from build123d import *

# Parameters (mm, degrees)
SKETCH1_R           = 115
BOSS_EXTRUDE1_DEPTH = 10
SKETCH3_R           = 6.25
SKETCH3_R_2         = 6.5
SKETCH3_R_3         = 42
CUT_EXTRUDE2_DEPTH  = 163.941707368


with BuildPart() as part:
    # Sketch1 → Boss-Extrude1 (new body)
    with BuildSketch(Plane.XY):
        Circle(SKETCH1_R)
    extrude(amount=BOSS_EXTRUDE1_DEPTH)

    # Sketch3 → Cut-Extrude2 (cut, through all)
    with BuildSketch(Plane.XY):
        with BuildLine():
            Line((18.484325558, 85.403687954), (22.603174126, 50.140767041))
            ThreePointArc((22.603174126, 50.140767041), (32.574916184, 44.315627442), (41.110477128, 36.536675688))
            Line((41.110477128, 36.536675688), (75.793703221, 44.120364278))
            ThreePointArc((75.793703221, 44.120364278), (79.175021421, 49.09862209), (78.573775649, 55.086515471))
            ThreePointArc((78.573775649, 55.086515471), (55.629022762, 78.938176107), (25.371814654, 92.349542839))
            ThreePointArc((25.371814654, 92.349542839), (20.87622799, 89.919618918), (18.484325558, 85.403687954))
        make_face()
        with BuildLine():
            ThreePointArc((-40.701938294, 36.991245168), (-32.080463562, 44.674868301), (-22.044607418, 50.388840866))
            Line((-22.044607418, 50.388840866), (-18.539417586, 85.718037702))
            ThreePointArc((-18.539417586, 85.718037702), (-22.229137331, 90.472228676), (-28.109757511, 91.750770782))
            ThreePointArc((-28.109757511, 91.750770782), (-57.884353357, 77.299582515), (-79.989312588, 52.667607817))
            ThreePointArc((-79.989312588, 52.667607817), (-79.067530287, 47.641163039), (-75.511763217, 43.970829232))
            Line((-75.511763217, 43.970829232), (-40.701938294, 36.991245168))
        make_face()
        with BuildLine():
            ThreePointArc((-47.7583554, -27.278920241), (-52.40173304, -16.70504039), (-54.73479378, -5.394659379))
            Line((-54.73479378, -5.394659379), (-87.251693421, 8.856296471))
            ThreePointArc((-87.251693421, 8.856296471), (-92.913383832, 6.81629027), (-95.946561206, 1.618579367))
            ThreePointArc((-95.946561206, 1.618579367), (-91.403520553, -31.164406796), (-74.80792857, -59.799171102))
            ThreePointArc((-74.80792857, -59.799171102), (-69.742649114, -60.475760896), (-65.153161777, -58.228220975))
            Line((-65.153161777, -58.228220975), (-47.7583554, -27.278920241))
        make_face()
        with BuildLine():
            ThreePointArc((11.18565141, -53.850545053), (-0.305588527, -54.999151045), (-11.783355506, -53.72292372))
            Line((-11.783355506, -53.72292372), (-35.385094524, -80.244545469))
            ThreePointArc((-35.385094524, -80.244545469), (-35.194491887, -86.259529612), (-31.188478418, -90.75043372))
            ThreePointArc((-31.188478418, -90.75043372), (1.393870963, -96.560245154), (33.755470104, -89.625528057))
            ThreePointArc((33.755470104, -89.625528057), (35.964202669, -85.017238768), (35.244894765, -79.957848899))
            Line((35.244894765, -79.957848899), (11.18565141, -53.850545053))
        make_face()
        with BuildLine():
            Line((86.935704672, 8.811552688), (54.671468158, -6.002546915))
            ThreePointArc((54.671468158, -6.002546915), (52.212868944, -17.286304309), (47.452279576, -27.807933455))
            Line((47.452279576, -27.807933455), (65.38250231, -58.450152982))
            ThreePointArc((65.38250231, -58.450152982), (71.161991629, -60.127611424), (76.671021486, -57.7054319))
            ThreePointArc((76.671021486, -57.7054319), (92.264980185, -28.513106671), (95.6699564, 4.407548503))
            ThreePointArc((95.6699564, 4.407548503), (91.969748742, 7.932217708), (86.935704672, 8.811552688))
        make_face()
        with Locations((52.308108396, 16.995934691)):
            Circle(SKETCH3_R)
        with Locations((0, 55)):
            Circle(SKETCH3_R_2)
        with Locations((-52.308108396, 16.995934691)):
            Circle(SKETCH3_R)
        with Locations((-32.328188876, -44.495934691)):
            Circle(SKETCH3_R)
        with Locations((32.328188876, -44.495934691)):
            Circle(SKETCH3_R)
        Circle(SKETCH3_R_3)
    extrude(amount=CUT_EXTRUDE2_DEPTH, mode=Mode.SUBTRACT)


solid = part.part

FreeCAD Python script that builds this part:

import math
import FreeCAD as App
import Part
import Sketcher

V = App.Vector

doc = App.newDocument("Part")
body = doc.addObject("PartDesign::Body", "Body")

# Sketch on XY plane
sketch1 = doc.addObject("Sketcher::SketchObject", "Sketch")
body.addObject(sketch1)
sketch1.AttachmentSupport = (doc.XY_Plane, [""])
sketch1.MapMode = "FlatFace"
sketch1.addGeometry(Part.Circle(V(0, 0, 0), V(0, 0, 1), 115), False)
sketch1.addConstraint(Sketcher.Constraint("Coincident", 0, 3, -1, 1))
sketch1.addConstraint(Sketcher.Constraint("Diameter", 0, 230.0))
pad1 = doc.addObject("PartDesign::Pad", "Pad")
body.addObject(pad1)
pad1.Profile = sketch1
pad1.Length = 10

# Sketch on XY plane
sketch2 = doc.addObject("Sketcher::SketchObject", "Sketch001")
body.addObject(sketch2)
sketch2.AttachmentSupport = (doc.XY_Plane, [""])
sketch2.MapMode = "FlatFace"
sketch2.addGeometry(Part.LineSegment(V(18, 85, 0), V(23, 50, 0)), False)
sketch2.addGeometry(Part.ArcOfCircle(Part.Circle(V(0, 0, 0), V(0, 0, 1), 55), math.radians(42), math.radians(66)), False)
sketch2.addGeometry(Part.LineSegment(V(41, 37, 0), V(76, 44, 0)), False)
sketch2.addGeometry(Part.ArcOfCircle(Part.Circle(V(71, 51, 0), V(0, 0, 1), 9), math.radians(-54), math.radians(26)), False)
sketch2.addGeometry(Part.ArcOfCircle(Part.Circle(V(6, 9, 0), V(0, 0, 1), 86), math.radians(33), math.radians(77)), False)
sketch2.addGeometry(Part.ArcOfCircle(Part.Circle(V(27, 84, 0), V(0, 0, 1), 9), math.radians(102), math.radians(169)), False)
sketch2.addGeometry(Part.ArcOfCircle(Part.Circle(V(0, 0, 0), V(0, 0, 1), 55), math.radians(114), math.radians(138)), False)
sketch2.addGeometry(Part.LineSegment(V(-22, 50, 0), V(-19, 86, 0)), False)
sketch2.addGeometry(Part.ArcOfCircle(Part.Circle(V(-27, 83, 0), V(0, 0, 1), 9), math.radians(18), math.radians(98)), False)
sketch2.addGeometry(Part.ArcOfCircle(Part.Circle(V(-6, 9, 0), V(0, 0, 1), 86), math.radians(105), math.radians(149)), False)
sketch2.addGeometry(Part.ArcOfCircle(Part.Circle(V(-71, 52, 0), V(0, 0, 1), 9), math.radians(174), math.radians(241)), False)
sketch2.addGeometry(Part.LineSegment(V(-76, 44, 0), V(-41, 37, 0)), False)
sketch2.addGeometry(Part.ArcOfCircle(Part.Circle(V(0, 0, 0), V(0, 0, 1), 55), math.radians(-174), math.radians(-150)), False)
sketch2.addGeometry(Part.LineSegment(V(-55, -5, 0), V(-87, 9, 0)), False)
sketch2.addGeometry(Part.ArcOfCircle(Part.Circle(V(-87, 0, 0), V(0, 0, 1), 9), math.radians(90), math.radians(170)), False)
sketch2.addGeometry(Part.ArcOfCircle(Part.Circle(V(-10, -3, 0), V(0, 0, 1), 86), math.radians(177), math.radians(221)), False)
sketch2.addGeometry(Part.ArcOfCircle(Part.Circle(V(-71, -52, 0), V(0, 0, 1), 9), math.radians(-114), math.radians(-47)), False)
sketch2.addGeometry(Part.LineSegment(V(-65, -58, 0), V(-48, -27, 0)), False)
sketch2.addGeometry(Part.ArcOfCircle(Part.Circle(V(0, 0, 0), V(0, 0, 1), 55), math.radians(-102), math.radians(-78)), False)
sketch2.addGeometry(Part.LineSegment(V(-12, -54, 0), V(-35, -80, 0)), False)
sketch2.addGeometry(Part.ArcOfCircle(Part.Circle(V(-27, -83, 0), V(0, 0, 1), 9), math.radians(162), math.radians(242)), False)
sketch2.addGeometry(Part.ArcOfCircle(Part.Circle(V(0, -11, 0), V(0, 0, 1), 86), math.radians(-111), math.radians(-67)), False)
sketch2.addGeometry(Part.ArcOfCircle(Part.Circle(V(27, -84, 0), V(0, 0, 1), 9), math.radians(-42), math.radians(25)), False)
sketch2.addGeometry(Part.LineSegment(V(35, -80, 0), V(11, -54, 0)), False)
sketch2.addGeometry(Part.LineSegment(V(87, 9, 0), V(55, -6, 0)), False)
sketch2.addGeometry(Part.ArcOfCircle(Part.Circle(V(0, 0, 0), V(0, 0, 1), 55), math.radians(-30), math.radians(-6)), False)
sketch2.addGeometry(Part.LineSegment(V(47, -28, 0), V(65, -58, 0)), False)
sketch2.addGeometry(Part.ArcOfCircle(Part.Circle(V(71, -51, 0), V(0, 0, 1), 9), math.radians(-126), math.radians(-46)), False)
sketch2.addGeometry(Part.ArcOfCircle(Part.Circle(V(10, -3, 0), V(0, 0, 1), 86), math.radians(-39), math.radians(5)), False)
sketch2.addGeometry(Part.ArcOfCircle(Part.Circle(V(88, 0, 0), V(0, 0, 1), 9), math.radians(30), math.radians(97)), False)
sketch2.addGeometry(Part.Circle(V(52, 17, 0), V(0, 0, 1), 6), False)
sketch2.addGeometry(Part.Circle(V(0, 55, 0), V(0, 0, 1), 6), False)
sketch2.addGeometry(Part.Circle(V(-52, 17, 0), V(0, 0, 1), 6), False)
sketch2.addGeometry(Part.Circle(V(-32, -44, 0), V(0, 0, 1), 6), False)
sketch2.addGeometry(Part.Circle(V(32, -44, 0), V(0, 0, 1), 6), False)
sketch2.addGeometry(Part.Circle(V(0, 0, 0), V(0, 0, 1), 42), False)
sketch2.addConstraint(Sketcher.Constraint("Coincident", 0, 2, 1, 2))
sketch2.addConstraint(Sketcher.Constraint("Coincident", 1, 1, 2, 1))
sketch2.addConstraint(Sketcher.Constraint("Coincident", 2, 2, 3, 1))
sketch2.addConstraint(Sketcher.Constraint("Coincident", 3, 2, 4, 1))
sketch2.addConstraint(Sketcher.Constraint("Coincident", 4, 2, 5, 1))
sketch2.addConstraint(Sketcher.Constraint("Coincident", 5, 2, 0, 1))
sketch2.addConstraint(Sketcher.Constraint("Coincident", 6, 1, 7, 1))
sketch2.addConstraint(Sketcher.Constraint("Coincident", 7, 2, 8, 1))
sketch2.addConstraint(Sketcher.Constraint("Coincident", 8, 2, 9, 1))
sketch2.addConstraint(Sketcher.Constraint("Coincident", 9, 2, 10, 1))
sketch2.addConstraint(Sketcher.Constraint("Coincident", 10, 2, 11, 1))
sketch2.addConstraint(Sketcher.Constraint("Coincident", 11, 2, 6, 2))
sketch2.addConstraint(Sketcher.Constraint("Coincident", 12, 1, 13, 1))
sketch2.addConstraint(Sketcher.Constraint("Coincident", 13, 2, 14, 1))
sketch2.addConstraint(Sketcher.Constraint("Coincident", 14, 2, 15, 1))
sketch2.addConstraint(Sketcher.Constraint("Coincident", 15, 2, 16, 1))
sketch2.addConstraint(Sketcher.Constraint("Coincident", 16, 2, 17, 1))
sketch2.addConstraint(Sketcher.Constraint("Coincident", 17, 2, 12, 2))
sketch2.addConstraint(Sketcher.Constraint("Coincident", 18, 1, 19, 1))
sketch2.addConstraint(Sketcher.Constraint("Coincident", 19, 2, 20, 1))
sketch2.addConstraint(Sketcher.Constraint("Coincident", 20, 2, 21, 1))
sketch2.addConstraint(Sketcher.Constraint("Coincident", 21, 2, 22, 1))
sketch2.addConstraint(Sketcher.Constraint("Coincident", 22, 2, 23, 1))
sketch2.addConstraint(Sketcher.Constraint("Coincident", 23, 2, 18, 2))
sketch2.addConstraint(Sketcher.Constraint("Coincident", 24, 2, 25, 2))
sketch2.addConstraint(Sketcher.Constraint("Coincident", 25, 1, 26, 1))
sketch2.addConstraint(Sketcher.Constraint("Coincident", 26, 2, 27, 1))
sketch2.addConstraint(Sketcher.Constraint("Coincident", 27, 2, 28, 1))
sketch2.addConstraint(Sketcher.Constraint("Coincident", 28, 2, 29, 1))
sketch2.addConstraint(Sketcher.Constraint("Coincident", 29, 2, 24, 1))
sketch2.addConstraint(Sketcher.Constraint("Coincident", 1, 3, -1, 1))
sketch2.addConstraint(Sketcher.Constraint("Coincident", 6, 3, -1, 1))
sketch2.addConstraint(Sketcher.Constraint("Coincident", 12, 3, -1, 1))
sketch2.addConstraint(Sketcher.Constraint("Coincident", 18, 3, -1, 1))
sketch2.addConstraint(Sketcher.Constraint("Coincident", 25, 3, -1, 1))
sketch2.addConstraint(Sketcher.Constraint("Coincident", 35, 3, -1, 1))
sketch2.addConstraint(Sketcher.Constraint("Equal", 3, 5))
sketch2.addConstraint(Sketcher.Constraint("Equal", 1, 6))
sketch2.addConstraint(Sketcher.Constraint("Equal", 5, 8))
sketch2.addConstraint(Sketcher.Constraint("Equal", 4, 9))
sketch2.addConstraint(Sketcher.Constraint("Equal", 8, 10))
sketch2.addConstraint(Sketcher.Constraint("Equal", 6, 12))
sketch2.addConstraint(Sketcher.Constraint("Equal", 10, 14))
sketch2.addConstraint(Sketcher.Constraint("Equal", 9, 15))
sketch2.addConstraint(Sketcher.Constraint("Equal", 14, 16))
sketch2.addConstraint(Sketcher.Constraint("Equal", 12, 18))
sketch2.addConstraint(Sketcher.Constraint("Equal", 16, 20))
sketch2.addConstraint(Sketcher.Constraint("Equal", 15, 21))
sketch2.addConstraint(Sketcher.Constraint("Equal", 20, 22))
sketch2.addConstraint(Sketcher.Constraint("Equal", 18, 25))
sketch2.addConstraint(Sketcher.Constraint("Equal", 22, 27))
sketch2.addConstraint(Sketcher.Constraint("Equal", 21, 28))
sketch2.addConstraint(Sketcher.Constraint("Equal", 27, 29))
sketch2.addConstraint(Sketcher.Constraint("Equal", 30, 32))
sketch2.addConstraint(Sketcher.Constraint("Equal", 32, 33))
sketch2.addConstraint(Sketcher.Constraint("Equal", 33, 34))
sketch2.addConstraint(Sketcher.Constraint("Symmetric", 30, 3, 32, 3, -2))
sketch2.addConstraint(Sketcher.Constraint("Symmetric", 33, 3, 34, 3, -2))
sketch2.addConstraint(Sketcher.Constraint("PointOnObject", 31, 3, -2))
sketch2.addConstraint(Sketcher.Constraint("Equal", 0, 2))
sketch2.addConstraint(Sketcher.Constraint("Equal", 2, 7))
sketch2.addConstraint(Sketcher.Constraint("Equal", 7, 11))
sketch2.addConstraint(Sketcher.Constraint("Equal", 11, 13))
sketch2.addConstraint(Sketcher.Constraint("Equal", 13, 17))
sketch2.addConstraint(Sketcher.Constraint("Equal", 17, 19))
sketch2.addConstraint(Sketcher.Constraint("Equal", 19, 23))
sketch2.addConstraint(Sketcher.Constraint("Equal", 23, 24))
sketch2.addConstraint(Sketcher.Constraint("Equal", 24, 26))
sketch2.addConstraint(Sketcher.Constraint("Diameter", 31, 13.0))
sketch2.addConstraint(Sketcher.Constraint("Diameter", 35, 84.0))
sketch2.addConstraint(Sketcher.Constraint("Radius", 1, 55.0))
sketch2.addConstraint(Sketcher.Constraint("Diameter", 30, 12.5))
sketch2.addConstraint(Sketcher.Constraint("DistanceY", -1, 1, 31, 3, 55.0))
sketch2.addConstraint(Sketcher.Constraint("Radius", 3, 8.814878))
sketch2.addConstraint(Sketcher.Constraint("Radius", 4, 85.934848))
sketch2.addConstraint(Sketcher.Constraint("DistanceX", 17, 2, 18, 1, 35.975))
sketch2.addConstraint(Sketcher.Constraint("DistanceY", 34, 3, 25, 1, 16.688001))
sketch2.addConstraint(Sketcher.Constraint("DistanceX", 2, 2, 29, 2, 11.142001))
sketch2.addConstraint(Sketcher.Constraint("DistanceX", 21, 3, -1, 1, 0.094399))
sketch2.addConstraint(Sketcher.Constraint("DistanceY", 10, 3, 8, 3, 31.339101))
sketch2.addConstraint(Sketcher.Constraint("DistanceY", 15, 3, 4, 3, 11.748701))
sketch2.addConstraint(Sketcher.Constraint("DistanceY", 32, 3, 10, 3, 34.680201))
sketch2.addConstraint(Sketcher.Constraint("DistanceY", 33, 3, 15, 3, 41.298302))
sketch2.addConstraint(Sketcher.Constraint("DistanceY", 22, 3, 34, 3, 39.179099))
sketch2.addConstraint(Sketcher.Constraint("DistanceY", 4, 3, 0, 2, 41.589699))
sketch2.addConstraint(Sketcher.Constraint("DistanceX", 1, 1, 3, 2, 37.463299))
sketch2.addConstraint(Sketcher.Constraint("DistanceX", 8, 3, 6, 1, 4.885099))
sketch2.addConstraint(Sketcher.Constraint("DistanceY", 9, 3, 6, 1, 41.726801))
sketch2.addConstraint(Sketcher.Constraint("DistanceX", 32, 3, 6, 1, 30.263501))
sketch2.addConstraint(Sketcher.Constraint("DistanceY", 8, 3, 7, 2, 2.702801))
sketch2.addConstraint(Sketcher.Constraint("DistanceX", 13, 2, 12, 1, 32.5169))
sketch2.addConstraint(Sketcher.Constraint("DistanceY", 20, 3, 16, 2, 24.761401))
sketch2.addConstraint(Sketcher.Constraint("DistanceY", 16, 2, 17, 2, 30.949301))
sketch2.addConstraint(Sketcher.Constraint("DistanceY", 20, 2, 33, 3, 46.254499))
sketch2.addConstraint(Sketcher.Constraint("DistanceY", 26, 2, 27, 3, 7.1183))
sketch2.addConstraint(Sketcher.Constraint("DistanceX", 27, 3, 27, 2, 6.0893))
sketch2.addConstraint(Sketcher.Constraint("DistanceY", 27, 2, 25, 1, 29.897498))
sketch2.addConstraint(Sketcher.Constraint("DistanceY", 24, 2, 29, 2, 14.8141))
sketch2.addConstraint(Sketcher.Constraint("DistanceY", -1, 1, 3, 3, 51.264791))
sketch2.addConstraint(Sketcher.Constraint("DistanceX", -1, 1, 5, 3, 27.135531))
sketch2.addConstraint(Sketcher.Constraint("DistanceY", -1, 1, 9, 3, 8.66204))
sketch2.addConstraint(Sketcher.Constraint("DistanceX", 10, 3, -1, 1, 71.230371))
sketch2.addConstraint(Sketcher.Constraint("DistanceX", 14, 3, -1, 1, 87.273919))
sketch2.addConstraint(Sketcher.Constraint("DistanceX", 15, 3, -1, 1, 10.146782))
sketch2.addConstraint(Sketcher.Constraint("DistanceX", 16, 3, -1, 1, 71.158321))
sketch2.addConstraint(Sketcher.Constraint("DistanceX", 20, 3, -1, 1, 27.008542))
sketch2.addConstraint(Sketcher.Constraint("DistanceY", 20, 3, -1, 1, 82.989621))
sketch2.addConstraint(Sketcher.Constraint("DistanceX", -1, 1, 22, 3, 27.25211))
sketch2.addConstraint(Sketcher.Constraint("DistanceX", -1, 1, 27, 3, 70.581722))
sketch2.addConstraint(Sketcher.Constraint("DistanceX", -1, 1, 28, 3, 10.08844))
sketch2.addConstraint(Sketcher.Constraint("DistanceY", 28, 3, -1, 1, 3.377189))
sketch2.addConstraint(Sketcher.Constraint("DistanceX", -1, 1, 29, 3, 88.001051))
sketch2.addConstraint(Sketcher.Constraint("DistanceY", -1, 1, 29, 3, 0.061289))
sketch2.addConstraint(Sketcher.Constraint("DistanceX", 33, 3, -1, 1, 32.328189))
sketch2.addConstraint(Sketcher.Constraint("DistanceY", -1, 1, 8, 2, 91.750771))
sketch2.addConstraint(Sketcher.Constraint("DistanceY", -1, 1, 10, 2, 43.970829))
sketch2.addConstraint(Sketcher.Constraint("DistanceY", 12, 1, -1, 1, 5.394659))
sketch2.addConstraint(Sketcher.Constraint("DistanceY", 22, 2, -1, 1, 79.957849))
sketch2.addConstraint(Sketcher.Constraint("DistanceY", 3, 3, 5, 3, 32.448121))
sketch2.addConstraint(Sketcher.Constraint("DistanceX", 8, 3, 3, 3, 97.560151))
pocket1 = doc.addObject("PartDesign::Pocket", "Pocket")
body.addObject(pocket1)
pocket1.Profile = sketch2
pocket1.Type = "ThroughAll"
pocket1.Reversed = True

doc.recompute()
